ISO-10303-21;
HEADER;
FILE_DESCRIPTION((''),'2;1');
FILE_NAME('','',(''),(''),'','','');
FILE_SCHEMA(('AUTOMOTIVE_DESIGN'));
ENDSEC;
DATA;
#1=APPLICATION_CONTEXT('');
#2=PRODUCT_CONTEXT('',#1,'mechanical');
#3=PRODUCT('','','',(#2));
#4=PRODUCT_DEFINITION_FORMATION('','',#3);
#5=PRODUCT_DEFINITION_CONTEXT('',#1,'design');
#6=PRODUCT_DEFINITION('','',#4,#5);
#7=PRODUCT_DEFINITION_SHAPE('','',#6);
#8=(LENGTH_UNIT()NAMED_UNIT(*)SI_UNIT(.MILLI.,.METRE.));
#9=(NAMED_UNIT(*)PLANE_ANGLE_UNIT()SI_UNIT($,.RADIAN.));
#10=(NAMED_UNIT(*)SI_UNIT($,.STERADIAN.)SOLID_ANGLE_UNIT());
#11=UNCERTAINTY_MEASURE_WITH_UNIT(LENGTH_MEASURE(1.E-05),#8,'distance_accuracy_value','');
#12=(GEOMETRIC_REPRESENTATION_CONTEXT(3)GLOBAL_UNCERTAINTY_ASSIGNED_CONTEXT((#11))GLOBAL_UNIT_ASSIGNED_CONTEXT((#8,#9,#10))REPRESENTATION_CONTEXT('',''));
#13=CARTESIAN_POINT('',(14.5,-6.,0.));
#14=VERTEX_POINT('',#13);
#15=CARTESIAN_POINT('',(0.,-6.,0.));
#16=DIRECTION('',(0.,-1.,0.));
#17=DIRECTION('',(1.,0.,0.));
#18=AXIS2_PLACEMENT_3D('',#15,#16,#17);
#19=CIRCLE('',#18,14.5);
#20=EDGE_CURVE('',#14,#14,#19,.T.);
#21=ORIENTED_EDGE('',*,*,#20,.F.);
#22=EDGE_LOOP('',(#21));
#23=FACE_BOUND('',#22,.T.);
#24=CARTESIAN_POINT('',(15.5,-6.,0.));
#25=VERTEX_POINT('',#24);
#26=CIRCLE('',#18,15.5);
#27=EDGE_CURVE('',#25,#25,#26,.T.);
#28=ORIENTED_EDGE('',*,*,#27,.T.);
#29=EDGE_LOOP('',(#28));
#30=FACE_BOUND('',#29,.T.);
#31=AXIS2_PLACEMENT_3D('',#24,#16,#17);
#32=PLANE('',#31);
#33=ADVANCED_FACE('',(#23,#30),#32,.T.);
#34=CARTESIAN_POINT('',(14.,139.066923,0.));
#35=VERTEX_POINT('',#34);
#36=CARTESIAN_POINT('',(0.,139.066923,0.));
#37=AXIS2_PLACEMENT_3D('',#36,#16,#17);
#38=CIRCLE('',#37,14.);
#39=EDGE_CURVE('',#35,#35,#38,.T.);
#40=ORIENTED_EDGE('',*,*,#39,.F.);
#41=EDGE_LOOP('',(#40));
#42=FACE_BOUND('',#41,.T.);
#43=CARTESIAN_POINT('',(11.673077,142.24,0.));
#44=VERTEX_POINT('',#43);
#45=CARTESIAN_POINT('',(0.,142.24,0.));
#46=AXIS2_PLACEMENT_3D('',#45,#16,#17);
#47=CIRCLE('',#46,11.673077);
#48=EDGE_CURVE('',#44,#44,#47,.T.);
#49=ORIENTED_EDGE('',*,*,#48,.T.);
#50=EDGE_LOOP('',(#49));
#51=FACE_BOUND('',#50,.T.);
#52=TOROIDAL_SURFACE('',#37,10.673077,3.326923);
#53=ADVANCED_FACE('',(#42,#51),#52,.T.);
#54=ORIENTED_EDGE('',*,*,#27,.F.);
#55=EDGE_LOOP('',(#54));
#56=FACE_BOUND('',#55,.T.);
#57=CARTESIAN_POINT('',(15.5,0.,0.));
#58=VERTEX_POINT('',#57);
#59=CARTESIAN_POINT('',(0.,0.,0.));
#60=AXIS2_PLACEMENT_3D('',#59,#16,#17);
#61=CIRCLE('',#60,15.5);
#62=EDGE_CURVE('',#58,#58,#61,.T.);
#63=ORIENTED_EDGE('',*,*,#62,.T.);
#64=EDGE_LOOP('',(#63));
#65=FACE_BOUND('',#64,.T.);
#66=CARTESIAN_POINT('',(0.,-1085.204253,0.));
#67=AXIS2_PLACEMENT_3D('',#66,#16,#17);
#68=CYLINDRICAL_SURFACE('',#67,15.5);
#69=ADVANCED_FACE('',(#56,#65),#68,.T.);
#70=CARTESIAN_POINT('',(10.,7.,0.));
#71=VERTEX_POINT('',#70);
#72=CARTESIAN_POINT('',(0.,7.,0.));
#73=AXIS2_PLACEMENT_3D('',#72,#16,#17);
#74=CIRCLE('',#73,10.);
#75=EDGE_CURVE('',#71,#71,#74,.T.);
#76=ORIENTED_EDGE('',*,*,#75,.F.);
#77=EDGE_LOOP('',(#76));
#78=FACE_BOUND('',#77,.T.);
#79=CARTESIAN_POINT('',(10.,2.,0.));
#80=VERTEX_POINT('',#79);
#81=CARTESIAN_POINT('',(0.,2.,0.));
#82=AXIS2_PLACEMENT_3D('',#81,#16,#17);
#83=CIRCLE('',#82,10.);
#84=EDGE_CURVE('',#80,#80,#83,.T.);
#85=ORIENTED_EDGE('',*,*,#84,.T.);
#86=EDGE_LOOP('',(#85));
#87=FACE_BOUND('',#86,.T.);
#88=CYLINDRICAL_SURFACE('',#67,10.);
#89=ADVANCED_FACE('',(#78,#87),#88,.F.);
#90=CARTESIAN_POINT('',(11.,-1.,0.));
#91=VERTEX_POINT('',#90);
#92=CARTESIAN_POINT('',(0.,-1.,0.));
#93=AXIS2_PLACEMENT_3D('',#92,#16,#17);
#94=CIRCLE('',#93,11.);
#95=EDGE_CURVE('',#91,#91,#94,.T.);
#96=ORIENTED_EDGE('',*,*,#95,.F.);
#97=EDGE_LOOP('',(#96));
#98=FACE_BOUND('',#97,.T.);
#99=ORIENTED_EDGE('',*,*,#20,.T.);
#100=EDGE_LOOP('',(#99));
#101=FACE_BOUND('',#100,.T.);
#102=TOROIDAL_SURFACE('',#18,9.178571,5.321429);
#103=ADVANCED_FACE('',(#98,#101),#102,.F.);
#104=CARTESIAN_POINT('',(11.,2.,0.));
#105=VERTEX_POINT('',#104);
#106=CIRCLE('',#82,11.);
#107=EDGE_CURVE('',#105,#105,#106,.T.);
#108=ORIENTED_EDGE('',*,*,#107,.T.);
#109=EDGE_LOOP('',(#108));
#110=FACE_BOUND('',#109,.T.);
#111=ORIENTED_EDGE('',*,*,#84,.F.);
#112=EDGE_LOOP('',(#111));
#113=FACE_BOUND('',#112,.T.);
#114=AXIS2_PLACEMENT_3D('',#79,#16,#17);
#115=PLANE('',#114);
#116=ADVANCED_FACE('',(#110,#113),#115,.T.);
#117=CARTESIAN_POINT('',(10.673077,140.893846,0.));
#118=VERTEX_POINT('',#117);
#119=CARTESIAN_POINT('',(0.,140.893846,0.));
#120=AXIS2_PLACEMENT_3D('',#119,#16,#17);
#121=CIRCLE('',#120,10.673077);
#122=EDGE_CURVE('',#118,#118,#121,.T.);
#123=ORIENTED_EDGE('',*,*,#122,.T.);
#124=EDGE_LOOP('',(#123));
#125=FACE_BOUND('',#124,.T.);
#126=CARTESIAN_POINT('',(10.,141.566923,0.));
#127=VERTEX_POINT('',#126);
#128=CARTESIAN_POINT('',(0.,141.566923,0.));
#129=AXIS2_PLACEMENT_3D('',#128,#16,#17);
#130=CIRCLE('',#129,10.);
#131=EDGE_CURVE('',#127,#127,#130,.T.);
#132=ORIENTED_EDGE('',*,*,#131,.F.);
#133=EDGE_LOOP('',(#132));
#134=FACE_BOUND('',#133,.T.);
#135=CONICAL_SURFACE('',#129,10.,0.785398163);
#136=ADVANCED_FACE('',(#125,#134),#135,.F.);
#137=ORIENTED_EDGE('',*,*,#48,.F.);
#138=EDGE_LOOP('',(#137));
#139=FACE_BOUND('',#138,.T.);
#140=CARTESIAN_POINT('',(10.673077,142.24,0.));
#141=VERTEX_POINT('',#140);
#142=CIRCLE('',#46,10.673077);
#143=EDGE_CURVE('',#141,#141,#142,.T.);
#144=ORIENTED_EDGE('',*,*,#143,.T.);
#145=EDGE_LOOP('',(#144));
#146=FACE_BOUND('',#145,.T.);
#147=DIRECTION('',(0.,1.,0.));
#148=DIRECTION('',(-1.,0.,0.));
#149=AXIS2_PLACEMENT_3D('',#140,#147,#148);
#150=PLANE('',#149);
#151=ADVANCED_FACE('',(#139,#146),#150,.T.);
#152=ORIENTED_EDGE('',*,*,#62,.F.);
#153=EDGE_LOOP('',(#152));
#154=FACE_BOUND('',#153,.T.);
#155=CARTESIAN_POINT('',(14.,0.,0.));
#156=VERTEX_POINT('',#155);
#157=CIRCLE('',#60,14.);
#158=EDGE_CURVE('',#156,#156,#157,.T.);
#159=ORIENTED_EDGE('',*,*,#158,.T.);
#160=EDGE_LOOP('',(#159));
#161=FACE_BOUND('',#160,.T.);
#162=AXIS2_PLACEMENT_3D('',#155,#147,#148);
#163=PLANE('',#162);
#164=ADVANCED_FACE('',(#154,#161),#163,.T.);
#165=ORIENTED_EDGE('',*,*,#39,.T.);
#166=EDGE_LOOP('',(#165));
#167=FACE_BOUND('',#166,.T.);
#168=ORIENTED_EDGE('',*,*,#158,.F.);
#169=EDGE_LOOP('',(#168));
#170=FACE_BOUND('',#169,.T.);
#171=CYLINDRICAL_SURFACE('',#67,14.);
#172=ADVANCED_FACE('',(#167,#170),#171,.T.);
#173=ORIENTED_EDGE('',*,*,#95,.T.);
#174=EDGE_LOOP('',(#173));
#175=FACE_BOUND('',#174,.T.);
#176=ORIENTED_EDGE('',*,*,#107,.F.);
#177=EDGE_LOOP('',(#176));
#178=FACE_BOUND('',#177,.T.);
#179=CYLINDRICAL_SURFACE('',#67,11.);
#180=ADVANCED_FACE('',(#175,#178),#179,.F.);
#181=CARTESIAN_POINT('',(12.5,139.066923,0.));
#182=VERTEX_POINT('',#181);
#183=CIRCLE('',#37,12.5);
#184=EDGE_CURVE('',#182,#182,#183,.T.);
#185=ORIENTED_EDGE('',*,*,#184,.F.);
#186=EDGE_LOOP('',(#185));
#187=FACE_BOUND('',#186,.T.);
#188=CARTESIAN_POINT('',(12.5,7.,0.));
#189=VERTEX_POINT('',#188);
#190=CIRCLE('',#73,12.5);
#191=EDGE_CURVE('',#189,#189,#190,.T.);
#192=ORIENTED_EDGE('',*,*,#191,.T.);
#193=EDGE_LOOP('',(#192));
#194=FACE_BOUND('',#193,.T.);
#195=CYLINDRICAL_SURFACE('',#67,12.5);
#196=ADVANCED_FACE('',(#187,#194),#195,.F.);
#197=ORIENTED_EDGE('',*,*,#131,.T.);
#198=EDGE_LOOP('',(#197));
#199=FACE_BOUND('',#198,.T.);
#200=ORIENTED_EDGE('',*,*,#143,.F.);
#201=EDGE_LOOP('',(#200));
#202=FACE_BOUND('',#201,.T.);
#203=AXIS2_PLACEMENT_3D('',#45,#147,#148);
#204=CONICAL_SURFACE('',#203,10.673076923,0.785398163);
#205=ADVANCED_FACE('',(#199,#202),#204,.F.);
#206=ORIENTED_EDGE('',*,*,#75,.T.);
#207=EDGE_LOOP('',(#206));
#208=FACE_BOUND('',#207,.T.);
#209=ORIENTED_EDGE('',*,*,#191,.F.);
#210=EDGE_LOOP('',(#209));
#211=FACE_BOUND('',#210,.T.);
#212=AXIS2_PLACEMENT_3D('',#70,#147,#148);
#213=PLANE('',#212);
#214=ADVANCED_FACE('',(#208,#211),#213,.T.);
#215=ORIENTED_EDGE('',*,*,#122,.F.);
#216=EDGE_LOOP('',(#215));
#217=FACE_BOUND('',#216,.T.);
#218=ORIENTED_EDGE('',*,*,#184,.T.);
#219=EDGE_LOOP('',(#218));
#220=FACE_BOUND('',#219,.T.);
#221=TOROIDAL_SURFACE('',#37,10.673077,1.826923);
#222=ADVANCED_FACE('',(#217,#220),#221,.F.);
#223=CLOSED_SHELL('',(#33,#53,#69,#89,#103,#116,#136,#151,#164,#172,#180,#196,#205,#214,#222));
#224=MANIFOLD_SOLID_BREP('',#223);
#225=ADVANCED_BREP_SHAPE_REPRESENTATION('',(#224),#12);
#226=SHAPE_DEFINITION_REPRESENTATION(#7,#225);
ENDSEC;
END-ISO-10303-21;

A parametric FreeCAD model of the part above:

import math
import FreeCAD as App
import Part
import Sketcher

doc = App.newDocument("Part")
params = doc.addObject("Spreadsheet::Sheet", "Params")
for row, (alias, value) in enumerate([
    ("sketch1_width", "1 mm"),
    ("sketch1_height", "5 mm"),
    ("sketch1_height2", "3 mm"),
    ("sketch1_height3", "6 mm"),
    ("sketch1_width2", "2.5 mm"),
    ("revolution_angle", "360 deg"),
], start=1):
    params.set(f"A{row}", alias)
    params.set(f"B{row}", "=" + value)
    params.setAlias(f"B{row}", alias)

body = doc.addObject("PartDesign::Body", "Body")

sketch1 = body.newObject("Sketcher::SketchObject", "Sketch")
sketch1.AttachmentSupport = (doc.getObject("XY_Plane"), [""])
sketch1.MapMode = "FlatFace"
sketch1.addGeometry(Part.LineSegment(App.Vector(12.5, 139.1, 0), App.Vector(12.5, 7, 0)), False)
sketch1.addGeometry(Part.LineSegment(App.Vector(12.5, 7, 0), App.Vector(10, 7, 0)), False)
sketch1.addGeometry(Part.LineSegment(App.Vector(10, 7, 0), App.Vector(10, 2, 0)), False)
sketch1.addGeometry(Part.LineSegment(App.Vector(10, 2, 0), App.Vector(11, 2, 0)), False)
sketch1.addGeometry(Part.LineSegment(App.Vector(11, 2, 0), App.Vector(11, -1, 0)), False)
sketch1.addGeometry(Part.ArcOfCircle(Part.Circle(App.Vector(9.2, -6, 0), App.Vector(0, 0, 1), 5.3), math.radians(0), math.radians(70)), False)
sketch1.addGeometry(Part.LineSegment(App.Vector(14.5, -6, 0), App.Vector(15.5, -6, 0)), False)
sketch1.addGeometry(Part.LineSegment(App.Vector(15.5, -6, 0), App.Vector(15.5, 0, 0)), False)
sketch1.addGeometry(Part.LineSegment(App.Vector(15.5, 0, 0), App.Vector(14, 0, 0)), False)
sketch1.addGeometry(Part.LineSegment(App.Vector(14, 0, 0), App.Vector(14, 139.1, 0)), False)
sketch1.addGeometry(Part.ArcOfCircle(Part.Circle(App.Vector(10.7, 139.1, 0), App.Vector(0, 0, 1), 3.3), math.radians(0), math.radians(73)), False)
sketch1.addGeometry(Part.LineSegment(App.Vector(11.7, 142.2, 0), App.Vector(10.7, 142.2, 0)), False)
sketch1.addGeometry(Part.LineSegment(App.Vector(10.7, 142.2, 0), App.Vector(10, 141.6, 0)), False)
sketch1.addGeometry(Part.LineSegment(App.Vector(10, 141.6, 0), App.Vector(10.7, 140.9, 0)), False)
sketch1.addGeometry(Part.ArcOfCircle(Part.Circle(App.Vector(10.7, 139.1, 0), App.Vector(0, 0, 1), 1.8), math.radians(0), math.radians(90)), False)
sketch1.addConstraint(Sketcher.Constraint("Coincident", 0, 2, 1, 1))
sketch1.addConstraint(Sketcher.Constraint("Coincident", 1, 2, 2, 1))
sketch1.addConstraint(Sketcher.Constraint("Coincident", 2, 2, 3, 1))
sketch1.addConstraint(Sketcher.Constraint("Coincident", 3, 2, 4, 1))
sketch1.addConstraint(Sketcher.Constraint("Coincident", 4, 2, 5, 2))
sketch1.addConstraint(Sketcher.Constraint("Coincident", 5, 1, 6, 1))
sketch1.addConstraint(Sketcher.Constraint("Coincident", 6, 2, 7, 1))
sketch1.addConstraint(Sketcher.Constraint("Coincident", 7, 2, 8, 1))
sketch1.addConstraint(Sketcher.Constraint("Coincident", 8, 2, 9, 1))
sketch1.addConstraint(Sketcher.Constraint("Tangent", 9, 2, 10, 1))
sketch1.addConstraint(Sketcher.Constraint("Coincident", 10, 2, 11, 1))
sketch1.addConstraint(Sketcher.Constraint("Coincident", 11, 2, 12, 1))
sketch1.addConstraint(Sketcher.Constraint("Coincident", 12, 2, 13, 1))
sketch1.addConstraint(Sketcher.Constraint("Coincident", 13, 2, 14, 2))
sketch1.addConstraint(Sketcher.Constraint("Tangent", 14, 1, 0, 1))
sketch1.addConstraint(Sketcher.Constraint("Vertical", 0))
sketch1.addConstraint(Sketcher.Constraint("Horizontal", 1))
sketch1.addConstraint(Sketcher.Constraint("Vertical", 2))
sketch1.addConstraint(Sketcher.Constraint("Horizontal", 3))
sketch1.addConstraint(Sketcher.Constraint("Vertical", 4))
sketch1.addConstraint(Sketcher.Constraint("Horizontal", 6))
sketch1.addConstraint(Sketcher.Constraint("Vertical", 7))
sketch1.addConstraint(Sketcher.Constraint("Horizontal", 8))
sketch1.addConstraint(Sketcher.Constraint("Vertical", 9))
sketch1.addConstraint(Sketcher.Constraint("Horizontal", 11))
sketch1.addConstraint(Sketcher.Constraint("Coincident", 14, 3, 10, 3))
sketch1.addConstraint(Sketcher.Constraint("PointOnObject", 7, 2, -1))
sketch1.addConstraint(Sketcher.Constraint("Perpendicular", 12, 13))
sketch1.addConstraint(Sketcher.Constraint("Vertical", 14, 3, 11, 2))
sketch1.addConstraint(Sketcher.Constraint("Vertical", 2, 2, 12, 2))
sketch1.addConstraint(Sketcher.Constraint("Vertical", 11, 2, 13, 2))
sketch1.addConstraint(Sketcher.Constraint("Equal", 3, 6))
sketch1.addConstraint(Sketcher.Constraint("Equal", 6, 11))
sketch1.addConstraint(Sketcher.Constraint("Equal", 12, 13))
sketch1.addConstraint(Sketcher.Constraint("DistanceX", 3, 1, 3, 2, 1.0))
sketch1.addConstraint(Sketcher.Constraint("DistanceY", 2, 2, 2, 1, 5.0))
sketch1.addConstraint(Sketcher.Constraint("DistanceY", 4, 2, 4, 1, 3.0))
sketch1.addConstraint(Sketcher.Constraint("DistanceY", 7, 1, 7, 2, 6.0))
sketch1.addConstraint(Sketcher.Constraint("DistanceX", 1, 2, 1, 1, 2.5))
sketch1.addConstraint(Sketcher.Constraint("DistanceX", 8, 2, 8, 1, 1.5))
sketch1.addConstraint(Sketcher.Constraint("DistanceY", 5, 3, -1, 1, 6.0))
sketch1.addConstraint(Sketcher.Constraint("DistanceY", -1, 1, 0, 2, 7.0))
sketch1.addConstraint(Sketcher.Constraint("DistanceX", -1, 1, 1, 2, 10.0))
sketch1.addConstraint(Sketcher.Constraint("DistanceX", -1, 1, 8, 2, 14.0))
sketch1.addConstraint(Sketcher.Constraint("DistanceY", -1, 1, 10, 2, 142.24))
sketch1.setExpression("Constraints[34]", "Params.sketch1_width")
sketch1.setExpression("Constraints[35]", "Params.sketch1_height")
sketch1.setExpression("Constraints[36]", "Params.sketch1_height2")
sketch1.setExpression("Constraints[37]", "Params.sketch1_height3")
sketch1.setExpression("Constraints[38]", "Params.sketch1_width2")
revolution = body.newObject("PartDesign::Revolution", "Revolution")
revolution.Profile = sketch1
revolution.ReferenceAxis = (sketch1, ["V_Axis"])
revolution.setExpression("Angle", "Params.revolution_angle")

doc.recompute()
